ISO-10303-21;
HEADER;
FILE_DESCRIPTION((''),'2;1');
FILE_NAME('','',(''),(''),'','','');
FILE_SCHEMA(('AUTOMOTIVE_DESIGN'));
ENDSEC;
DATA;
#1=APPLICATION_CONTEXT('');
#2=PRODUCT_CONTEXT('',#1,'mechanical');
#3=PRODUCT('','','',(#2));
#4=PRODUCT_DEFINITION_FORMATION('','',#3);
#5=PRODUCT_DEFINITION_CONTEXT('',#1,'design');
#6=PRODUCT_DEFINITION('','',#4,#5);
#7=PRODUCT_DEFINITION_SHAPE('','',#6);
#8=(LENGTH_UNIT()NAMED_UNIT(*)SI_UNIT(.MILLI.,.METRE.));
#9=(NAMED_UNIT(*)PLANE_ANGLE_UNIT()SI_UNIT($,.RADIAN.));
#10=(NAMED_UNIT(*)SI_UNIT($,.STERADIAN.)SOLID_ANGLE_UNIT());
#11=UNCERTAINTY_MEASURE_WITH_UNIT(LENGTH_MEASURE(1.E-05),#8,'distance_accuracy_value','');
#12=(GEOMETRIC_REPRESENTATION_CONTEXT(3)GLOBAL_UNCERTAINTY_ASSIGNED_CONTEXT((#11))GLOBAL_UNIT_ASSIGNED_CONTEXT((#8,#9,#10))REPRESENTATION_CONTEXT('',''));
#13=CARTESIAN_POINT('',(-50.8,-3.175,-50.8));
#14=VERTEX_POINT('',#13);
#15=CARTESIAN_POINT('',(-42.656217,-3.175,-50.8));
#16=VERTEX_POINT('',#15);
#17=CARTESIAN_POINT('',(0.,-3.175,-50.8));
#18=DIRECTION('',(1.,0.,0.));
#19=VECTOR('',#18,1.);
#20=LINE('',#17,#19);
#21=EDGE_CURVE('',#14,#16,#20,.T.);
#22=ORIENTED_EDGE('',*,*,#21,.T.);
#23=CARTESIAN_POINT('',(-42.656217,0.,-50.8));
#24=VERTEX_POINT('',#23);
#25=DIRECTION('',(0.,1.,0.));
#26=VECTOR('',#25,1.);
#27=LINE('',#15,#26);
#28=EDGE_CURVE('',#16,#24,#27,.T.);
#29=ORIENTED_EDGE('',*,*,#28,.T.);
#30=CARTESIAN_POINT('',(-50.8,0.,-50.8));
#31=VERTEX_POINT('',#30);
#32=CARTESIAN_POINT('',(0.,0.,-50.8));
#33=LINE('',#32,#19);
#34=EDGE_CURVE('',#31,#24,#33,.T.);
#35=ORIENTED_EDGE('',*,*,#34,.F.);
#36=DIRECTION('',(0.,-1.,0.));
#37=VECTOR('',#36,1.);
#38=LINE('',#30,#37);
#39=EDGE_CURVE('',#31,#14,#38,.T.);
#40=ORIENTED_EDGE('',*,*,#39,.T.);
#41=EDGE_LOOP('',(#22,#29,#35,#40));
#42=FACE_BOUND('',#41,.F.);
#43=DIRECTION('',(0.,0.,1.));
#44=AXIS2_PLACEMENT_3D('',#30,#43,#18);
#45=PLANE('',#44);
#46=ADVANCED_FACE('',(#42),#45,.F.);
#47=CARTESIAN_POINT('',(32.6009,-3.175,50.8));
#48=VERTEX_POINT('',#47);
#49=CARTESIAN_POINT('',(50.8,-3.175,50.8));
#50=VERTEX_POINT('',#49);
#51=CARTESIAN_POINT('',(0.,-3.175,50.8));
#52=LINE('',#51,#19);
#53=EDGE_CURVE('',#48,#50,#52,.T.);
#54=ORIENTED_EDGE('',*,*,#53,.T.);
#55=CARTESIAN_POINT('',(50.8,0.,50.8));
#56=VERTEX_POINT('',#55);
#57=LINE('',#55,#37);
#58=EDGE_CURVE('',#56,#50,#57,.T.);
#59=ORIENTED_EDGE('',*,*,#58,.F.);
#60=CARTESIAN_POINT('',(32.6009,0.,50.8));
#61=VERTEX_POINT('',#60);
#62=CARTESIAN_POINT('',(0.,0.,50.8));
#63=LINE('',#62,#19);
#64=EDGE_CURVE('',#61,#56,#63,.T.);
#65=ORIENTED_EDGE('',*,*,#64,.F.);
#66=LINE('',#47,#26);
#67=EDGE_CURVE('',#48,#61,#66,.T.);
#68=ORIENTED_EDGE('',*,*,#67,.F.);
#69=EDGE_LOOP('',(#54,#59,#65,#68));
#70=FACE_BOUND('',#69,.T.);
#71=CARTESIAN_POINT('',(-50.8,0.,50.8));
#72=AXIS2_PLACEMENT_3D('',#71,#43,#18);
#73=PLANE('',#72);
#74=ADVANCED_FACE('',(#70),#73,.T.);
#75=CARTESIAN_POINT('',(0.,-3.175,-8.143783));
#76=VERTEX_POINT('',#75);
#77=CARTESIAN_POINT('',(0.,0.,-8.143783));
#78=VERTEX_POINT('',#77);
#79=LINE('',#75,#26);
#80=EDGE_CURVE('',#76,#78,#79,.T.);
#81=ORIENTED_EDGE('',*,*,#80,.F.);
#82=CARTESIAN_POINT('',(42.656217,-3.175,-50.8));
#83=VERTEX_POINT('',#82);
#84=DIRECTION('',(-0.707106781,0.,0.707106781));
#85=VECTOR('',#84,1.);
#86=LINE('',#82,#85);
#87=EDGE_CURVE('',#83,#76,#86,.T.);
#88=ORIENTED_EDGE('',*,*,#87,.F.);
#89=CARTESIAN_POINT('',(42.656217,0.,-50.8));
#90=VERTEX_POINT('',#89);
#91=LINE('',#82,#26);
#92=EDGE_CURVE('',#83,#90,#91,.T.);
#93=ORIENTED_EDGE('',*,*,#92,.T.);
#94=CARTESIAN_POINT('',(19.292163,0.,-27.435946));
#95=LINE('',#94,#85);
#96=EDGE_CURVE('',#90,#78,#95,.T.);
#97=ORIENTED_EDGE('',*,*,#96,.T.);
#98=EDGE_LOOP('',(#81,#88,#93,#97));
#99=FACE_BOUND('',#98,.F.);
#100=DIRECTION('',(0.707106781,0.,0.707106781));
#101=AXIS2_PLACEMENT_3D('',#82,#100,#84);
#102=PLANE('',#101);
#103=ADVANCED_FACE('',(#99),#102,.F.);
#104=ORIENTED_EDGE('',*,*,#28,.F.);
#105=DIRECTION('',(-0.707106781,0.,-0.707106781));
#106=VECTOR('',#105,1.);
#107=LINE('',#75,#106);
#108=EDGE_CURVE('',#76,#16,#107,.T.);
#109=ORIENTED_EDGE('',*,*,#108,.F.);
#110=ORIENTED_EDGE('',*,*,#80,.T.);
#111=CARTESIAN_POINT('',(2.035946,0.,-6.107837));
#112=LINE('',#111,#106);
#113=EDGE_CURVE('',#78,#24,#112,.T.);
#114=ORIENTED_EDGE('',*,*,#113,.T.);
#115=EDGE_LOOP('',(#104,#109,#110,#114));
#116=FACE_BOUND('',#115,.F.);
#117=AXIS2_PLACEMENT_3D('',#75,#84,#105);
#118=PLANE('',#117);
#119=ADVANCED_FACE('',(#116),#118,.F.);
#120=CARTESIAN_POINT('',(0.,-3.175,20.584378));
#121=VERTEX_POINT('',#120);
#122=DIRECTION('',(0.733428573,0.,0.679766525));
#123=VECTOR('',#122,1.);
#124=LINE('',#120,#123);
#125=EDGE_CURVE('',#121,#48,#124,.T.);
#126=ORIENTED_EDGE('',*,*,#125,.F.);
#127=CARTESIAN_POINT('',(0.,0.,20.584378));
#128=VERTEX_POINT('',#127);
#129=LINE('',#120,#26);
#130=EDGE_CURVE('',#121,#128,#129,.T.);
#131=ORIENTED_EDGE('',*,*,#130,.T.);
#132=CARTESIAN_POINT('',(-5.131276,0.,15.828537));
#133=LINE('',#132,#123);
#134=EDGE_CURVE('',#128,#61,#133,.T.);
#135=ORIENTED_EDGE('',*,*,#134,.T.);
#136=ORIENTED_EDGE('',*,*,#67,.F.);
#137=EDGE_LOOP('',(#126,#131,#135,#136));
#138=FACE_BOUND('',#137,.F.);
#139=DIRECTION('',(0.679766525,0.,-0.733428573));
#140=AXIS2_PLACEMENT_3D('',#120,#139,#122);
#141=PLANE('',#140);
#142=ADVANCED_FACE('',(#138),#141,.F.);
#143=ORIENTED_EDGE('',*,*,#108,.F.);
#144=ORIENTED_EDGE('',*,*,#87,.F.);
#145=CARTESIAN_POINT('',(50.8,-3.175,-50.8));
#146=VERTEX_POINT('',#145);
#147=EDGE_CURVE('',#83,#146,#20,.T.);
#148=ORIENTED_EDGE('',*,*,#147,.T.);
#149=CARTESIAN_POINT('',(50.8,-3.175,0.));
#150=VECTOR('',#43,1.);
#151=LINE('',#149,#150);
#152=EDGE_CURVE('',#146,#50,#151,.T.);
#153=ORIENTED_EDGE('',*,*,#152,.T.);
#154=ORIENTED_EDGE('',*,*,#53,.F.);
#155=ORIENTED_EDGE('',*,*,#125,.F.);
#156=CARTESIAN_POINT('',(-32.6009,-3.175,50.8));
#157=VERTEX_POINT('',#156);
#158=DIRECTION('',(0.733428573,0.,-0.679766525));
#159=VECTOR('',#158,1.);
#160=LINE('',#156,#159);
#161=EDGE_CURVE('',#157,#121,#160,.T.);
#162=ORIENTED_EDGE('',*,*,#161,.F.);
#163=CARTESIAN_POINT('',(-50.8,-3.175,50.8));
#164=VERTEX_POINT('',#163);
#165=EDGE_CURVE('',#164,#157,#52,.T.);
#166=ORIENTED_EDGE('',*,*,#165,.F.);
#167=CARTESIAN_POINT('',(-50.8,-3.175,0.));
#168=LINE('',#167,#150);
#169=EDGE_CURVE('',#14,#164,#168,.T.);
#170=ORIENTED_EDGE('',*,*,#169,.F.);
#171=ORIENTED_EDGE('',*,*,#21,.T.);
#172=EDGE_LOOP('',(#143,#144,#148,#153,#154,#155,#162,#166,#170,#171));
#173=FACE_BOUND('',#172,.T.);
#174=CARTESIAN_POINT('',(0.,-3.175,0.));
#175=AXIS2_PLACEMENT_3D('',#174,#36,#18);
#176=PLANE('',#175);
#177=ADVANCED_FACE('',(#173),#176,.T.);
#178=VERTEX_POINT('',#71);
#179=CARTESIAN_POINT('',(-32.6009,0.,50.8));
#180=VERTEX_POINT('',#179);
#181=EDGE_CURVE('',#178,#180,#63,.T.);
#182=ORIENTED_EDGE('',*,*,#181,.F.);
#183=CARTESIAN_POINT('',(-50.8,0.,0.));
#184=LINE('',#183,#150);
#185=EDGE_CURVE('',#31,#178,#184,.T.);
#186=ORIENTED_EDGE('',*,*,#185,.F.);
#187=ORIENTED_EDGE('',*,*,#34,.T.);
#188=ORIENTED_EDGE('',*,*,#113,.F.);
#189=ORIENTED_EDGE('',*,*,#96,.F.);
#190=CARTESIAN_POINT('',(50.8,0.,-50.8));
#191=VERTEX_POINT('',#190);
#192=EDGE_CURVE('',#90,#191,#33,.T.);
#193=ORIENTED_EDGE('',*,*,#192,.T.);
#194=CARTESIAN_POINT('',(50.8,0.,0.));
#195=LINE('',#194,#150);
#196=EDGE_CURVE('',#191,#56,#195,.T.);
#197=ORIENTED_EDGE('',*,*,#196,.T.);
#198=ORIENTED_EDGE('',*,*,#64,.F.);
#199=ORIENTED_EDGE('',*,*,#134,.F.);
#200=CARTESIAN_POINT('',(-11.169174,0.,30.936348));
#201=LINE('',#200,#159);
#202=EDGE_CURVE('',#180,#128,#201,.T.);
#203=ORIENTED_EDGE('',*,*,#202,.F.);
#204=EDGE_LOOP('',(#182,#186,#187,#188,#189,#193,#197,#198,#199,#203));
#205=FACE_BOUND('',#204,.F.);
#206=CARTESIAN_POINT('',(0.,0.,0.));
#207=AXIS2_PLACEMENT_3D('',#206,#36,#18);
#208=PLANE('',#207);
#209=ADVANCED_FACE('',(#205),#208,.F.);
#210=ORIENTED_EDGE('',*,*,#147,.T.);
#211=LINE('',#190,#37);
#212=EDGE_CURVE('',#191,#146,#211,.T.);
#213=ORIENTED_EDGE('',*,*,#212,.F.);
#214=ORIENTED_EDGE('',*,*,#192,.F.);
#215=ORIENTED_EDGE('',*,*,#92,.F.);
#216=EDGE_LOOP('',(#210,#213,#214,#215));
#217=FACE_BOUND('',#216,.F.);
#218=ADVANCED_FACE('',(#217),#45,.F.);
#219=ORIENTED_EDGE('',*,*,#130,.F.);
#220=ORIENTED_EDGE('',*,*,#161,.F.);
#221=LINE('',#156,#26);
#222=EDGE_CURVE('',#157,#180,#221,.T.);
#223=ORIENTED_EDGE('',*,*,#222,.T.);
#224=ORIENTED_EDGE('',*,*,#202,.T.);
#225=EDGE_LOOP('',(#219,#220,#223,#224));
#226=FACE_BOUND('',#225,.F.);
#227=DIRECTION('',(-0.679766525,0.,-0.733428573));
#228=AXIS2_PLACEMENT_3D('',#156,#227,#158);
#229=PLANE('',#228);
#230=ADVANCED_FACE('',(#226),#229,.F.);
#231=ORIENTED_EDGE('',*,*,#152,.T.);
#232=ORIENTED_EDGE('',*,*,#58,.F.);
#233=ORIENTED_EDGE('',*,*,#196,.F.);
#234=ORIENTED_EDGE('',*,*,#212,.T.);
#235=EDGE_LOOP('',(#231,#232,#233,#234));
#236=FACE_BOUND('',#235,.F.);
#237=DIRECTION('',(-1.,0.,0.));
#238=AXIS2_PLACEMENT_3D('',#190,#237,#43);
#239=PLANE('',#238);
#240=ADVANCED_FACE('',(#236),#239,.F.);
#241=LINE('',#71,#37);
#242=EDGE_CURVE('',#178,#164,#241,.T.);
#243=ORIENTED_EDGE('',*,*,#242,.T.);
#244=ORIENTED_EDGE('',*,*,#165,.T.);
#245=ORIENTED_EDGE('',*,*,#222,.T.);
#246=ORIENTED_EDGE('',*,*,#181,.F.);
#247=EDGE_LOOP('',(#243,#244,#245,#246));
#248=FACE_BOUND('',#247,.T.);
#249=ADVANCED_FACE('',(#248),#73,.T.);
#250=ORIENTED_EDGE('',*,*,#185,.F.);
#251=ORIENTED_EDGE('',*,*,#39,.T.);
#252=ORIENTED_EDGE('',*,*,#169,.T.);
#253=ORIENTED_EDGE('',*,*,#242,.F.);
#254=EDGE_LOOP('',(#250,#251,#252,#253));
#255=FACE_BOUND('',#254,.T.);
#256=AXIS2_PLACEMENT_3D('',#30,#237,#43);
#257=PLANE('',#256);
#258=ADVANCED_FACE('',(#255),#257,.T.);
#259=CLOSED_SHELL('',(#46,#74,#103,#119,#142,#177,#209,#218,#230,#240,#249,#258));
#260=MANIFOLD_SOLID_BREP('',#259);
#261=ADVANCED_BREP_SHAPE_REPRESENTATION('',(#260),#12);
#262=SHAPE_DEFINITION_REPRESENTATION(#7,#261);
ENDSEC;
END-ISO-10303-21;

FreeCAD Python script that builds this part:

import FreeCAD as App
import Part
import Sketcher
Q = App.Units.Quantity

doc = App.newDocument("Part")
body = doc.addObject("PartDesign::Body", "Body")

sketch1 = body.newObject("Sketcher::SketchObject", "Sketch")
sketch1.AttachmentSupport = (doc.getObject("XZ_Plane"), [""])
sketch1.MapMode = "FlatFace"
sketch1.addGeometry([
    Part.LineSegment(App.Vector(-50.8, 50.8, 0), App.Vector(-50.8, -50.8, 0)),
    Part.LineSegment(App.Vector(-50.8, -50.8, 0), App.Vector(50.8, -50.8, 0)),
    Part.LineSegment(App.Vector(50.8, -50.8, 0), App.Vector(50.8, 50.8, 0)),
    Part.LineSegment(App.Vector(50.8, 50.8, 0), App.Vector(-50.8, 50.8, 0)),
], False)
sketch1.addConstraint([
    Sketcher.Constraint("Coincident", 0, 2, 1, 1),
    Sketcher.Constraint("Coincident", 1, 2, 2, 1),
    Sketcher.Constraint("Coincident", 2, 2, 3, 1),
    Sketcher.Constraint("Coincident", 3, 2, 0, 1),
    Sketcher.Constraint("Vertical", 0),
    Sketcher.Constraint("Horizontal", 1),
    Sketcher.Constraint("Vertical", 2),
    Sketcher.Constraint("Horizontal", 3),
    Sketcher.Constraint("Symmetric", 0, 2, 2, 2, -1, 1),
    Sketcher.Constraint("Equal", 3, 0),
    Sketcher.Constraint("DistanceX", 1, 1, 1, 2, Q("4 in")),
])
pad1 = body.newObject("PartDesign::Pad", "Pad")
pad1.Profile = sketch1
pad1.Length = Q("0.125 in")

sketch2 = body.newObject("Sketcher::SketchObject", "Sketch001")
sketch2.AttachmentSupport = (doc.getObject("XZ_Plane"), [""])
sketch2.MapMode = "FlatFace"
sketch2.AttachmentOffset = App.Placement(App.Vector(0, 0, 0.125 * 25.4), App.Rotation())
sketch2.addGeometry([
    Part.LineSegment(App.Vector(32.6009, 50.8, 0), App.Vector(-32.6009, 50.8, 0)),
    Part.LineSegment(App.Vector(-32.6009, 50.8, 0), App.Vector(0, 20.584378, 0)),
    Part.LineSegment(App.Vector(0, 20.584378, 0), App.Vector(32.6009, 50.8, 0)),
], False)
sketch2.addConstraint([
    Sketcher.Constraint("Coincident", 0, 2, 1, 1),
    Sketcher.Constraint("Coincident", 1, 2, 2, 1),
    Sketcher.Constraint("Coincident", 2, 2, 0, 1),
    Sketcher.Constraint("Horizontal", 0),
    Sketcher.Constraint("PointOnObject", 1, 2, -2),
    Sketcher.Constraint("Equal", 1, 2),
    Sketcher.Constraint("DistanceY", -1, 1, 0, 2, Q("2 in")),
    Sketcher.Constraint("Distance", 1, Q("1.75 in")),
    Sketcher.Constraint("DistanceX", 0, 2, 0, 1, Q("2.567 in")),
])
pocket1 = body.newObject("PartDesign::Pocket", "Pocket")
pocket1.Profile = sketch2
pocket1.Type = "ThroughAll"

sketch3 = body.newObject("Sketcher::SketchObject", "Sketch002")
sketch3.AttachmentSupport = (doc.getObject("XZ_Plane"), [""])
sketch3.MapMode = "FlatFace"
sketch3.AttachmentOffset = App.Placement(App.Vector(0, 0, 0.125 * 25.4), App.Rotation())
sketch3.addGeometry([
    Part.LineSegment(App.Vector(0, -8.143783, 0), App.Vector(-42.656217, -50.8, 0)),
    Part.LineSegment(App.Vector(-42.656217, -50.8, 0), App.Vector(42.656217, -50.8, 0)),
    Part.LineSegment(App.Vector(42.656217, -50.8, 0), App.Vector(0, -8.143783, 0)),
], False)
sketch3.addConstraint([
    Sketcher.Constraint("Coincident", 0, 2, 1, 1),
    Sketcher.Constraint("Coincident", 1, 2, 2, 1),
    Sketcher.Constraint("Coincident", 2, 2, 0, 1),
    Sketcher.Constraint("Horizontal", 1),
    Sketcher.Constraint("PointOnObject", 2, 2, -2),
    Sketcher.Constraint("Perpendicular", 0, 2),
    Sketcher.Constraint("Equal", 0, 2),
    Sketcher.Constraint("DistanceY", 0, 2, -1, 1, Q("2 in")),
    Sketcher.Constraint("Distance", 0, Q("2.375 in")),
])
pocket2 = body.newObject("PartDesign::Pocket", "Pocket001")
pocket2.Profile = sketch3
pocket2.Length = Q("1 in")

doc.recompute()
